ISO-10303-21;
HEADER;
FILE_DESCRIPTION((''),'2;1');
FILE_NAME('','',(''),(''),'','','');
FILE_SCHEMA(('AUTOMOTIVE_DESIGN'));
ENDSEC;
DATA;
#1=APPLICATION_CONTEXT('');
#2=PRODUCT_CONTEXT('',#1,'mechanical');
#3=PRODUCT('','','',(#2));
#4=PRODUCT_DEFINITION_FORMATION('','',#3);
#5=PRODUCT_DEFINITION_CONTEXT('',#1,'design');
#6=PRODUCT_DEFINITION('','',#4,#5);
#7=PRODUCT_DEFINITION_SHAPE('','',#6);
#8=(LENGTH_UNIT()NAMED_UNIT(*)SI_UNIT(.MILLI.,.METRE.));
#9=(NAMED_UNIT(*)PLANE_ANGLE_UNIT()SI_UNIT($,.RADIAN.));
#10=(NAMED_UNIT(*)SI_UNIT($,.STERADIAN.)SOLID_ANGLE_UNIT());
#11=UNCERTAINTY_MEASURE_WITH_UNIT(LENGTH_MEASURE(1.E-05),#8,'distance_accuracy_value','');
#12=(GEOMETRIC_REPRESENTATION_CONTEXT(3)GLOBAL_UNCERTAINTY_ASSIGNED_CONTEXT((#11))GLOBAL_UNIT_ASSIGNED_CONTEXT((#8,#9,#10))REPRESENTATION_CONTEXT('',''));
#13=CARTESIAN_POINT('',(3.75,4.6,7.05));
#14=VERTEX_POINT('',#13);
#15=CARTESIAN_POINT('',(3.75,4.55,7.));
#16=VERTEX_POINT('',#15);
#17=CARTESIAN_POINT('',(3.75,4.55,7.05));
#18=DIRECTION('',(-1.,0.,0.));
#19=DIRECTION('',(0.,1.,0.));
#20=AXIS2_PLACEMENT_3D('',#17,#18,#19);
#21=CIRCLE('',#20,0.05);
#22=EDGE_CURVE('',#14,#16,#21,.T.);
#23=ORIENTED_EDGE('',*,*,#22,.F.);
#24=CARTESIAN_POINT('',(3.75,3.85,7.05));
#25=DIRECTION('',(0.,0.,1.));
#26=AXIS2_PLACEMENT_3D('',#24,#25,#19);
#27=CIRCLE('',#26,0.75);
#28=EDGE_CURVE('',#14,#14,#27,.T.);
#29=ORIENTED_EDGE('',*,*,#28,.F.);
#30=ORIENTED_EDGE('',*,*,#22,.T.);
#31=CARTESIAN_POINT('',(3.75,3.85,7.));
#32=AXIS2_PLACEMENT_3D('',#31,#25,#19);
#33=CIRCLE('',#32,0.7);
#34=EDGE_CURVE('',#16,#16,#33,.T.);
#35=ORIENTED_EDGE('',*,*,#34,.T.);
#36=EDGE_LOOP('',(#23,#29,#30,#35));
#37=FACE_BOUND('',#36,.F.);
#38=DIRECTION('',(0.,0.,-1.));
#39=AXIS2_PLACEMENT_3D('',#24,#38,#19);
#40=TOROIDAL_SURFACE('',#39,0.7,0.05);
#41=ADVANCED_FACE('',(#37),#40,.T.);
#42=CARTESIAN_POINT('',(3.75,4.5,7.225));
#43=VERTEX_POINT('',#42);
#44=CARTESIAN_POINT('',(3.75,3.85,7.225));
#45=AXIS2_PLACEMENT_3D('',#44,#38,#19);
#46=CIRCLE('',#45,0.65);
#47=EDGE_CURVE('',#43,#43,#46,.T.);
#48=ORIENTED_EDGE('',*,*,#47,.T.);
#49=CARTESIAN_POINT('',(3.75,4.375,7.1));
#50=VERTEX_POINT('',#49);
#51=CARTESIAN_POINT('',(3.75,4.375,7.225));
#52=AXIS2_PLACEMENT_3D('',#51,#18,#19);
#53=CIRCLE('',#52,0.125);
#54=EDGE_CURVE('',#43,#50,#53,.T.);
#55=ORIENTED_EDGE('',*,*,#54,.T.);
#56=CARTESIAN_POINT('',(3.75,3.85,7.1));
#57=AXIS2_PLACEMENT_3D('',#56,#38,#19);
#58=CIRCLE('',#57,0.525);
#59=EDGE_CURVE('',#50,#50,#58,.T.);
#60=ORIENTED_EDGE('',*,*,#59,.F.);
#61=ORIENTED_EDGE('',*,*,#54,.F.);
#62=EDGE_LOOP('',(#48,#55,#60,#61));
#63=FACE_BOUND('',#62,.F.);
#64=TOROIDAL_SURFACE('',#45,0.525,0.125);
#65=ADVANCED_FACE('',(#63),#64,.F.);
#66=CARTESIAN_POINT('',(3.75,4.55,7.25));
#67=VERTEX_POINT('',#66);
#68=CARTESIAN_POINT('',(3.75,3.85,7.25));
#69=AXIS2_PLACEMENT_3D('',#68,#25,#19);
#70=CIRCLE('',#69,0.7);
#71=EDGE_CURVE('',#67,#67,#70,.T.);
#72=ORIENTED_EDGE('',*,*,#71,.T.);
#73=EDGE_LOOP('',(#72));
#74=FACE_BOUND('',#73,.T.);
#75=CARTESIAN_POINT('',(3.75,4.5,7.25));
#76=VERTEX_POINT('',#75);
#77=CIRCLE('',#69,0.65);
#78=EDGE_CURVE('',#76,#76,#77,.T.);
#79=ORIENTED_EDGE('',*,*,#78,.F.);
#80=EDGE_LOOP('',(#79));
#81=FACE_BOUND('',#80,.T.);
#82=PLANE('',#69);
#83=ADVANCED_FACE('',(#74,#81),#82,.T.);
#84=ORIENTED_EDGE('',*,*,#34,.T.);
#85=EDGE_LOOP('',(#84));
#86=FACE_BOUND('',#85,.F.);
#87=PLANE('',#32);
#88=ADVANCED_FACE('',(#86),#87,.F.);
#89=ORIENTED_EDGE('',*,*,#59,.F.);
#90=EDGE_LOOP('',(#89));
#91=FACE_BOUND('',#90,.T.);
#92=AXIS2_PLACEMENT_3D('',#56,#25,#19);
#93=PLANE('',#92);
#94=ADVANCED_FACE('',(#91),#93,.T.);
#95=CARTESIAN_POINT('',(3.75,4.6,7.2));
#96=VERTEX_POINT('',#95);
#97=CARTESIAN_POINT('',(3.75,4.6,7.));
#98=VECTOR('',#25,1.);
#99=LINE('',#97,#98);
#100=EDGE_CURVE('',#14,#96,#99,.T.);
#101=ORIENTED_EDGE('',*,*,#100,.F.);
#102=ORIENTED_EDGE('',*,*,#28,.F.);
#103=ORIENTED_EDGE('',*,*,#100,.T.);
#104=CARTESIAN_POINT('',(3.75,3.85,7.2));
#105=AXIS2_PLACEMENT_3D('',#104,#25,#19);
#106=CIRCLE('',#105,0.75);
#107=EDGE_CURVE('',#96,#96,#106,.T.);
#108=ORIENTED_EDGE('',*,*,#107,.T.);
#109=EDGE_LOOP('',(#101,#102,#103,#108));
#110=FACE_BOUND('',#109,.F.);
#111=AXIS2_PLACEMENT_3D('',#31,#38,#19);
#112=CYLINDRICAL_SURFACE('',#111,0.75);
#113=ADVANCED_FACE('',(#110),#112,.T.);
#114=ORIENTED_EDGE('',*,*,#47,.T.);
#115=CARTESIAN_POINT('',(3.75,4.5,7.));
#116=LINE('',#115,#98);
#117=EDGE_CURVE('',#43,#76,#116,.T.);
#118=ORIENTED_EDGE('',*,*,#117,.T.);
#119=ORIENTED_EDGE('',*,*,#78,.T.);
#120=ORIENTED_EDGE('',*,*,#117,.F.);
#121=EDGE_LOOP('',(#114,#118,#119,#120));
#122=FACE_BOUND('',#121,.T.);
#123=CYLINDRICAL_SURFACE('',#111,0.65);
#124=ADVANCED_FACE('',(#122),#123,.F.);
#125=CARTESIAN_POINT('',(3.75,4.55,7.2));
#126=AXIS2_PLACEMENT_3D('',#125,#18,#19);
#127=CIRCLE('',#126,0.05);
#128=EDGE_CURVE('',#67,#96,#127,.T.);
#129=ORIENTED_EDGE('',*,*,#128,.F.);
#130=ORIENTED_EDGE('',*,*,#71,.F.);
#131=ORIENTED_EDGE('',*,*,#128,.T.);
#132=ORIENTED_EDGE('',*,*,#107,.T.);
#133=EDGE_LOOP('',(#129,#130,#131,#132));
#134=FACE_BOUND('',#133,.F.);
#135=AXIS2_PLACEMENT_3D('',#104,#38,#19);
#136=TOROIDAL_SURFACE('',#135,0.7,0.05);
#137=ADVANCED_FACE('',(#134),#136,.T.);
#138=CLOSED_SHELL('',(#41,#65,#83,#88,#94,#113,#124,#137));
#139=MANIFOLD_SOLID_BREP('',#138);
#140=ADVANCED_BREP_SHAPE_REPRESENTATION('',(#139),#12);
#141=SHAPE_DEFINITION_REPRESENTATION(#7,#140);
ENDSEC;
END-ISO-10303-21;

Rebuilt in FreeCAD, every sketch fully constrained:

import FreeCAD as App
import Part
import Sketcher

V = App.Vector
Q = App.Units.Quantity


def edges_at(feature, points):
    """Names of the edges that pass closest to the given points."""
    edges = feature.Shape.Edges
    near = lambda p: min(range(len(edges)), key=lambda i: edges[i].distToShape(Part.Vertex(*p))[0])
    return sorted({f"Edge{near(p) + 1}" for p in points})


def faces_at(feature, points):
    """Names of the faces that lie closest to the given points."""
    faces = feature.Shape.Faces
    near = lambda p: min(range(len(faces)), key=lambda i: faces[i].distToShape(Part.Vertex(*p))[0])
    return sorted({f"Face{near(p) + 1}" for p in points})

doc = App.newDocument("Part")
body = doc.addObject("PartDesign::Body", "Body")

# Sketch on XY plane
sketch1 = doc.addObject("Sketcher::SketchObject", "Sketch")
body.addObject(sketch1)
sketch1.AttachmentSupport = (doc.XY_Plane, [""])
sketch1.MapMode = "FlatFace"
sketch1.AttachmentOffset = App.Placement(V(0, 0, 7), App.Rotation())
sketch1.addGeometry(Part.Circle(V(3.8, 3.9, 0), V(0, 0, 1), 0.8), False)
sketch1.addConstraint([
    Sketcher.Constraint("Diameter", 0, Q("1.5 mm")),
    Sketcher.Constraint("DistanceX", -1, 1, 0, 3, Q("3.75 mm")),
    Sketcher.Constraint("DistanceY", -1, 1, 0, 3, Q("3.85 mm")),
])
pad1 = doc.addObject("PartDesign::Pad", "Pad")
body.addObject(pad1)
pad1.Profile = sketch1
pad1.Length = 0.25
doc.recompute()

thickness = doc.addObject("PartDesign::Thickness", "Thickness")
body.addObject(thickness)
thickness.Base = (pad1, faces_at(pad1, [(3.75, 3.85, 7.25)]))
thickness.Value = 0.1
thickness.Reversed = True
thickness.Join = "Arc"
doc.recompute()

fillet = doc.addObject("PartDesign::Fillet", "Fillet")
body.addObject(fillet)
fillet.Base = (thickness, edges_at(thickness, [(3.75, 3.2, 7.1)]))
fillet.Radius = 0.125
doc.recompute()

fillet2 = doc.addObject("PartDesign::Fillet", "Fillet001")
body.addObject(fillet2)
fillet2.Base = (fillet, edges_at(fillet, [(3.75, 3.1, 7.25), (3.75, 3.1, 7)]))
fillet2.Radius = 0.05

doc.recompute()
